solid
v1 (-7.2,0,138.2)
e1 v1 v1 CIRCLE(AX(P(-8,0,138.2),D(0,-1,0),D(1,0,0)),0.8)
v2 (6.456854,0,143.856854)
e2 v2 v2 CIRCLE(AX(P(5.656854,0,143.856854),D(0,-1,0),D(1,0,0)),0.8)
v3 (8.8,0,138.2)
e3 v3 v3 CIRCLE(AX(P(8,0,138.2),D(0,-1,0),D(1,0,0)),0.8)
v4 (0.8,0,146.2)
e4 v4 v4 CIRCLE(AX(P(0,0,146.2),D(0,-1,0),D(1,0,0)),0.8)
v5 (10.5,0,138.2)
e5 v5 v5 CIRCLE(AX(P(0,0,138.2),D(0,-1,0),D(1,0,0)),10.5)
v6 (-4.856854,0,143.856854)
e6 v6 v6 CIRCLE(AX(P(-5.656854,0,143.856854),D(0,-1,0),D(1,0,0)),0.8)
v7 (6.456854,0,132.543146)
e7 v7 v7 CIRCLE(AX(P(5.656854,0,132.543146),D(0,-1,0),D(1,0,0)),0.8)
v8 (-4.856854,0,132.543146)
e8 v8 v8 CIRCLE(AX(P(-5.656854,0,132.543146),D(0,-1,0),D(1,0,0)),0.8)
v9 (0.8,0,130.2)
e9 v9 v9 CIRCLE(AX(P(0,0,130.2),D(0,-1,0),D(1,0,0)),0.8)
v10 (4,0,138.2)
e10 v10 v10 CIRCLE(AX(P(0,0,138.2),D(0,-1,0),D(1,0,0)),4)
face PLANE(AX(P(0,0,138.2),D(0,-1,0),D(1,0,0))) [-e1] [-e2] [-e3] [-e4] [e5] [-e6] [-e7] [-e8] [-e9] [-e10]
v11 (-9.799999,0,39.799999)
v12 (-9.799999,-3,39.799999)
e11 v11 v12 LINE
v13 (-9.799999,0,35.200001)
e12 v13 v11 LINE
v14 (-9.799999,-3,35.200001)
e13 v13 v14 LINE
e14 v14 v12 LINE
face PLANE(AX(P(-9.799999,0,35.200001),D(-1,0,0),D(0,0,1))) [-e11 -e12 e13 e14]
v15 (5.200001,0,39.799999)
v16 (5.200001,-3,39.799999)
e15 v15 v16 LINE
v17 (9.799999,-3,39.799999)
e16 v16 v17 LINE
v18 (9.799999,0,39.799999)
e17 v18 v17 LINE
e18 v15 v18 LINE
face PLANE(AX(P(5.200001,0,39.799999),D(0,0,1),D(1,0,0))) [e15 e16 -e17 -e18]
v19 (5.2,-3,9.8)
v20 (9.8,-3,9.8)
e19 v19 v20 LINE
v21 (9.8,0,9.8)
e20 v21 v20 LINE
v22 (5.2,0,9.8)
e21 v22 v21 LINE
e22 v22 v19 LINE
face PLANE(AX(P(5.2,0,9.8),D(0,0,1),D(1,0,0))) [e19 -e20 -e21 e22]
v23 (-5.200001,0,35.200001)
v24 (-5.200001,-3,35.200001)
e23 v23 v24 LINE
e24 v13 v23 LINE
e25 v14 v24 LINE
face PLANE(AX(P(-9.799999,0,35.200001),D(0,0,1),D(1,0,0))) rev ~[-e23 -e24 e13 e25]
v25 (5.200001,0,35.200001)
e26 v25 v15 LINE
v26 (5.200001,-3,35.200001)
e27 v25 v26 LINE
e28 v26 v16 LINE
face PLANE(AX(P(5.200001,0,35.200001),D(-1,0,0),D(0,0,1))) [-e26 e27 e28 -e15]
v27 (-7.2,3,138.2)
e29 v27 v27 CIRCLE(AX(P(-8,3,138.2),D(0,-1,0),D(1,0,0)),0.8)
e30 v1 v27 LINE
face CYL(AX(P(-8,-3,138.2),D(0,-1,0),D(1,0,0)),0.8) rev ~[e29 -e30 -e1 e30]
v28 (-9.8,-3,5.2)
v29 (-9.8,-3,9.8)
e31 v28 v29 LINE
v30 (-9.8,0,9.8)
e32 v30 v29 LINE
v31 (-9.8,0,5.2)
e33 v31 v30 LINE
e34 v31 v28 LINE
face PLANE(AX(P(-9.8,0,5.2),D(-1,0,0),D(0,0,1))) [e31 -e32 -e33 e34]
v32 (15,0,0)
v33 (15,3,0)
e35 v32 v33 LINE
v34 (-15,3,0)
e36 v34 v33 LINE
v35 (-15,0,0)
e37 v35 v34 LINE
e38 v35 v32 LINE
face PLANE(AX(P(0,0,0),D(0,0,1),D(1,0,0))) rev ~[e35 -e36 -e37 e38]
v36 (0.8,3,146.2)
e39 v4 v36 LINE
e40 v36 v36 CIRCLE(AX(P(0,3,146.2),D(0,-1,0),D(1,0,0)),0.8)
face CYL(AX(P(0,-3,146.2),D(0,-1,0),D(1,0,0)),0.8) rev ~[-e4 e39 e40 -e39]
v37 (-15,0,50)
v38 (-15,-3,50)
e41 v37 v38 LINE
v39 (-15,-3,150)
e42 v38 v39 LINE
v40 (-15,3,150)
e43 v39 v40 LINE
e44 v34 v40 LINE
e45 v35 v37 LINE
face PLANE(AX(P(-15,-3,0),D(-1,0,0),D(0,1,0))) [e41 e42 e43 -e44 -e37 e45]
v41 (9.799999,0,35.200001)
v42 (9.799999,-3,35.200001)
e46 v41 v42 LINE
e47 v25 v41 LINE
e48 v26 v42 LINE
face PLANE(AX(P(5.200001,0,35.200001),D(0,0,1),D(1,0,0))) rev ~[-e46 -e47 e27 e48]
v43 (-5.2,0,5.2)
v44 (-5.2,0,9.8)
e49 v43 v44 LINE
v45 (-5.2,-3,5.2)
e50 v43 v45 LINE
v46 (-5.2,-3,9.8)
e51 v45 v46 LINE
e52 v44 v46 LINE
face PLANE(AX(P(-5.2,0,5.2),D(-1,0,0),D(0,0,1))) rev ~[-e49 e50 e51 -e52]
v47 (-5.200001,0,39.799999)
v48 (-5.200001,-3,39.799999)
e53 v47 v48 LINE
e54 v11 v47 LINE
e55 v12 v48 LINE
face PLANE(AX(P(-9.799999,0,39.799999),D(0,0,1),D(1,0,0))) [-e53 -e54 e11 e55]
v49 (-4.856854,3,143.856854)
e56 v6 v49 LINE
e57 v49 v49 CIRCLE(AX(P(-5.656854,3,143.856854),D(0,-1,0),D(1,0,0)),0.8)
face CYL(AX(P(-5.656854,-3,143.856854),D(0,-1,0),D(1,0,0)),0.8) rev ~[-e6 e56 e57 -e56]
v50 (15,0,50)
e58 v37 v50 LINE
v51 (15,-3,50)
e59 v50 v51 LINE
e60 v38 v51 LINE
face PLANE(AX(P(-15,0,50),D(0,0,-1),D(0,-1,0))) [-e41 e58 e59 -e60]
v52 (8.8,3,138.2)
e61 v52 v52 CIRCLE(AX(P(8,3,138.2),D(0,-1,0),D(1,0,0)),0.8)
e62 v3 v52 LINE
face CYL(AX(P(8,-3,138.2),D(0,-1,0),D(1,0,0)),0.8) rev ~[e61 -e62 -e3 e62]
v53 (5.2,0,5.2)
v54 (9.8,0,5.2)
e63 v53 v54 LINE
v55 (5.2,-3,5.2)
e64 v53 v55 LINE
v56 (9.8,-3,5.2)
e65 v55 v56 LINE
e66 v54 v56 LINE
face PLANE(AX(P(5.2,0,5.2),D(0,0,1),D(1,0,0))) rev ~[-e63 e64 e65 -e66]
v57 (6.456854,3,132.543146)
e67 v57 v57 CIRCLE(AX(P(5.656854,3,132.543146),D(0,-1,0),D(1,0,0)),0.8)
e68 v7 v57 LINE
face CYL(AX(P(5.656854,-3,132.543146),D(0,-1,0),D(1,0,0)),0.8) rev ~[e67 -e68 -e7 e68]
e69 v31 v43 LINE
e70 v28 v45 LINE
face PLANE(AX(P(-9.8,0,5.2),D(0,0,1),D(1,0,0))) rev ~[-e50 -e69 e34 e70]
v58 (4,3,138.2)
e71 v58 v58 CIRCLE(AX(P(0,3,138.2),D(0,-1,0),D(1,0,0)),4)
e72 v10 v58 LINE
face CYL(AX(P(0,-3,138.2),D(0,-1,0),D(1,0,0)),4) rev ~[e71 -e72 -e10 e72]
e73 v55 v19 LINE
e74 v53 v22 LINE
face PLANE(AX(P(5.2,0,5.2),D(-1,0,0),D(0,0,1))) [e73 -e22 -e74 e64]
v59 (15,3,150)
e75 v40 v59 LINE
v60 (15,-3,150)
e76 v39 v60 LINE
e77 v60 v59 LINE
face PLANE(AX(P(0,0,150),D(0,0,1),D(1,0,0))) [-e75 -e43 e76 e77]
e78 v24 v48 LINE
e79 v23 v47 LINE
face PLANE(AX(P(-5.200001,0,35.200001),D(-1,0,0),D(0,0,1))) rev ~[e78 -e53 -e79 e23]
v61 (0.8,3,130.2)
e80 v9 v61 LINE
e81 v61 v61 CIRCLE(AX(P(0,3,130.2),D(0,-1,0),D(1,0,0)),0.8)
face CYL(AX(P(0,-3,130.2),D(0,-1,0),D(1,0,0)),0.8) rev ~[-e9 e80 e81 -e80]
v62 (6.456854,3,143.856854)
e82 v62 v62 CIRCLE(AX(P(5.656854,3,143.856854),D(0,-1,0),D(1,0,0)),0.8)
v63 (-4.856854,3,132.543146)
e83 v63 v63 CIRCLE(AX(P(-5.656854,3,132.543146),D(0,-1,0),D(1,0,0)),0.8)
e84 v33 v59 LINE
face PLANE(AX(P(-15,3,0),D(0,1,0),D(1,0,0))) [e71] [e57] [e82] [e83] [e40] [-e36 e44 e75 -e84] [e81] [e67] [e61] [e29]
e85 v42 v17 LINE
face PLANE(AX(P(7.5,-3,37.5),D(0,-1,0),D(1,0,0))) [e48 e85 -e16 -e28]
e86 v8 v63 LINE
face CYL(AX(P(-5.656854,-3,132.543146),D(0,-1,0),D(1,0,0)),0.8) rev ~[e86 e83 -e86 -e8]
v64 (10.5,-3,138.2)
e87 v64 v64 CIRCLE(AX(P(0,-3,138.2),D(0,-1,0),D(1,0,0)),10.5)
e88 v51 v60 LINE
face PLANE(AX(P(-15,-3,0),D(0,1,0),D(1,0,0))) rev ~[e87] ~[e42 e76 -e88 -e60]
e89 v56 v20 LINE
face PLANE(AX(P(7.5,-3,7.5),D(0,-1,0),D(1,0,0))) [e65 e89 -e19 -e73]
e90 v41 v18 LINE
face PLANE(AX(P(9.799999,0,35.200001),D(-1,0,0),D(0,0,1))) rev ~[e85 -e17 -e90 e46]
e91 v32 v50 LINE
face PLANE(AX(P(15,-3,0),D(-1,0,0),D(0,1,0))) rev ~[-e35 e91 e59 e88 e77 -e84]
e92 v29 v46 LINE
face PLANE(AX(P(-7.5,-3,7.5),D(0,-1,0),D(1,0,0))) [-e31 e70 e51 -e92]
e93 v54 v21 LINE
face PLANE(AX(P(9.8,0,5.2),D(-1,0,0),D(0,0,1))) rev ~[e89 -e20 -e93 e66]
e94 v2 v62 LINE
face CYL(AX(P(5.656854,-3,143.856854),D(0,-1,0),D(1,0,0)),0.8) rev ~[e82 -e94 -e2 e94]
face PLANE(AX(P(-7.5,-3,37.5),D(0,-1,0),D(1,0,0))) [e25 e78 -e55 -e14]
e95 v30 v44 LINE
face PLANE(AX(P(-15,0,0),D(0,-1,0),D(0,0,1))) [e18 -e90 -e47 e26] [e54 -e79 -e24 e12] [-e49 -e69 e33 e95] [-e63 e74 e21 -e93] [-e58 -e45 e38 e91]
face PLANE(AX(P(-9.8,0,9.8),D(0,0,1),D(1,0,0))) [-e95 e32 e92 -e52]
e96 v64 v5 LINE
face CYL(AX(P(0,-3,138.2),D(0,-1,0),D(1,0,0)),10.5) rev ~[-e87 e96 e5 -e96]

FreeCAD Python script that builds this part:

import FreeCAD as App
import Part
import Sketcher

V = App.Vector


def add_polygon(sketch, points):
    """Adds a closed chain of lines whose ends are joined by coincident constraints."""
    first, n = sketch.GeometryCount, len(points)
    for a, b in zip(points, points[1:] + points[:1]):
        sketch.addGeometry(Part.LineSegment(App.Vector(*a, 0), App.Vector(*b, 0)), False)
    for i in range(n):
        sketch.addConstraint(Sketcher.Constraint("Coincident", first + i, 2, first + (i + 1) % n, 1))

doc = App.newDocument("Part")
params = doc.addObject("Spreadsheet::Sheet", "Params")
for row, (alias, value) in enumerate([
    ("sketch1_width", "30 mm"),
    ("sketch1_height", "6 mm"),
    ("pad1_length", "150 mm"),
    ("sketch2_diameter", "8 mm"),
    ("sketch2_diameter2", "1.6 mm"),
    ("sketch3_width", "3 mm"),
    ("sketch3_height", "50 mm"),
    ("sketch4_width", "4.6 mm"),
    ("pad2_length", "3 mm"),
    ("sketch5_diameter", "21 mm"),
    ("pocket3_length", "3 mm"),
], start=1):
    params.set(f"A{row}", alias)
    params.set(f"B{row}", "=" + value)
    params.setAlias(f"B{row}", alias)

body = doc.addObject("PartDesign::Body", "Body")

# Sketch on XY plane
sketch1 = body.newObject("Sketcher::SketchObject", "Sketch")
sketch1.AttachmentSupport = (doc.getObject("XY_Plane"), [""])
sketch1.MapMode = "FlatFace"
add_polygon(sketch1, [(-15, 3), (-15, -3), (15, -3), (15, 3)])  # lines 0-3
sketch1.addConstraint([
    Sketcher.Constraint("Vertical", 0),
    Sketcher.Constraint("Horizontal", 1),
    Sketcher.Constraint("Vertical", 2),
    Sketcher.Constraint("Horizontal", 3),
    Sketcher.Constraint("Symmetric", 0, 2, 2, 2, -1, 1),
    Sketcher.Constraint("DistanceX", 1, 1, 1, 2, 30.0),
    Sketcher.Constraint("DistanceY", 0, 2, 0, 1, 6.0),
])
sketch1.setExpression("Constraints[9]", "Params.sketch1_width")
sketch1.setExpression("Constraints[10]", "Params.sketch1_height")
pad1 = body.newObject("PartDesign::Pad", "Pad")
pad1.Profile = sketch1
pad1.setExpression("Length", "Params.pad1_length")

# Sketch on XZ plane
sketch2 = body.newObject("Sketcher::SketchObject", "Sketch001")
sketch2.AttachmentSupport = (doc.getObject("XZ_Plane"), [""])
sketch2.MapMode = "FlatFace"
sketch2.AttachmentOffset = App.Placement(V(0, 0, 3), App.Rotation())
sketch2.addGeometry([
    Part.Circle(V(0, 146.2, 0), V(0, 0, 1), 0.8),  # 0
    Part.Circle(V(0, 138.2, 0), V(0, 0, 1), 4),  # 1
    Part.Circle(V(-5.7, 143.9, 0), V(0, 0, 1), 0.8),  # 2
    Part.Circle(V(-8, 138.2, 0), V(0, 0, 1), 0.8),  # 3
    Part.Circle(V(-5.7, 132.5, 0), V(0, 0, 1), 0.8),  # 4
    Part.Circle(V(0, 130.2, 0), V(0, 0, 1), 0.8),  # 5
    Part.Circle(V(5.7, 132.5, 0), V(0, 0, 1), 0.8),  # 6
    Part.Circle(V(8, 138.2, 0), V(0, 0, 1), 0.8),  # 7
    Part.Circle(V(5.7, 143.9, 0), V(0, 0, 1), 0.8),  # 8
], False)
sketch2.addConstraint([
    Sketcher.Constraint("Equal", 0, 2),
    Sketcher.Constraint("Equal", 2, 3),
    Sketcher.Constraint("Equal", 3, 4),
    Sketcher.Constraint("Equal", 4, 5),
    Sketcher.Constraint("Equal", 5, 6),
    Sketcher.Constraint("Equal", 6, 7),
    Sketcher.Constraint("Equal", 7, 8),
    Sketcher.Constraint("Symmetric", 4, 3, 6, 3, -2),
    Sketcher.Constraint("Symmetric", 3, 3, 7, 3, -2),
    Sketcher.Constraint("Symmetric", 2, 3, 8, 3, -2),
    Sketcher.Constraint("PointOnObject", 0, 3, -2),
    Sketcher.Constraint("PointOnObject", 1, 3, -2),
    Sketcher.Constraint("PointOnObject", 5, 3, -2),
    Sketcher.Constraint("Horizontal", 1, 3, 3, 3),
    Sketcher.Constraint("Vertical", 2, 3, 4, 3),
    Sketcher.Constraint("Diameter", 1, 8.0),
    Sketcher.Constraint("Diameter", 0, 1.6),
    Sketcher.Constraint("DistanceX", 3, 3, -1, 1, 8.0),
    Sketcher.Constraint("DistanceY", 1, 3, 0, 3, 8.0),
    Sketcher.Constraint("DistanceY", 5, 3, 1, 3, 8.0),
    Sketcher.Constraint("DistanceY", -1, 1, 0, 3, 146.2),
    Sketcher.Constraint("DistanceX", 2, 3, -1, 1, 5.656854),
    Sketcher.Constraint("DistanceY", -1, 1, 2, 3, 143.856854),
    Sketcher.Constraint("DistanceY", -1, 1, 4, 3, 132.543146),
])
sketch2.setExpression("Constraints[15]", "Params.sketch2_diameter")
sketch2.setExpression("Constraints[16]", "Params.sketch2_diameter2")
pocket1 = body.newObject("PartDesign::Pocket", "Pocket")
pocket1.Profile = sketch2
pocket1.Type = "ThroughAll"

# Sketch on YZ plane
sketch3 = body.newObject("Sketcher::SketchObject", "Sketch002")
sketch3.AttachmentSupport = (doc.getObject("YZ_Plane"), [""])
sketch3.MapMode = "FlatFace"
sketch3.AttachmentOffset = App.Placement(V(0, 0, -15), App.Rotation())
add_polygon(sketch3, [(0, 50), (0, 0), (-3, 0), (-3, 50)])  # lines 0-3
sketch3.addConstraint([
    Sketcher.Constraint("Vertical", 0),
    Sketcher.Constraint("Horizontal", 1),
    Sketcher.Constraint("Vertical", 2),
    Sketcher.Constraint("Horizontal", 3),
    Sketcher.Constraint("Coincident", 0, 2, -1, 1),
    Sketcher.Constraint("DistanceX", 1, 2, 1, 1, 3.0),
    Sketcher.Constraint("DistanceY", 0, 2, 0, 1, 50.0),
])
sketch3.setExpression("Constraints[9]", "Params.sketch3_width")
sketch3.setExpression("Constraints[10]", "Params.sketch3_height")
pocket2 = body.newObject("PartDesign::Pocket", "Pocket001")
pocket2.Profile = sketch3
pocket2.Type = "ThroughAll"
pocket2.Reversed = True

# Sketch on XZ plane
sketch4 = body.newObject("Sketcher::SketchObject", "Sketch003")
sketch4.AttachmentSupport = (doc.getObject("XZ_Plane"), [""])
sketch4.MapMode = "FlatFace"
add_polygon(sketch4, [(5.2, 39.8), (5.2, 35.2), (9.8, 35.2), (9.8, 39.8)])  # lines 0-3
add_polygon(sketch4, [(-9.8, 39.8), (-9.8, 35.2), (-5.2, 35.2), (-5.2, 39.8)])  # lines 4-7
add_polygon(sketch4, [(-9.8, 9.8), (-9.8, 5.2), (-5.2, 5.2), (-5.2, 9.8)])  # lines 8-11
add_polygon(sketch4, [(5.2, 9.8), (5.2, 5.2), (9.8, 5.2), (9.8, 9.8)])  # lines 12-15
sketch4.addConstraint([
    Sketcher.Constraint("Vertical", 0),
    Sketcher.Constraint("Horizontal", 1),
    Sketcher.Constraint("Vertical", 2),
    Sketcher.Constraint("Horizontal", 3),
    Sketcher.Constraint("Vertical", 4),
    Sketcher.Constraint("Horizontal", 5),
    Sketcher.Constraint("Vertical", 6),
    Sketcher.Constraint("Horizontal", 7),
    Sketcher.Constraint("Vertical", 8),
    Sketcher.Constraint("Horizontal", 9),
    Sketcher.Constraint("Vertical", 10),
    Sketcher.Constraint("Horizontal", 11),
    Sketcher.Constraint("Vertical", 12),
    Sketcher.Constraint("Horizontal", 13),
    Sketcher.Constraint("Vertical", 14),
    Sketcher.Constraint("Horizontal", 15),
    Sketcher.Constraint("Symmetric", 1, 2, 4, 2, -2),
    Sketcher.Constraint("Symmetric", 3, 2, 6, 2, -2),
    Sketcher.Constraint("Symmetric", 9, 2, 12, 2, -2),
    Sketcher.Constraint("Symmetric", 11, 2, 14, 2, -2),
    Sketcher.Constraint("Vertical", 7, 2, 8, 2),
    Sketcher.Constraint("Vertical", 6, 2, 9, 2),
    Sketcher.Constraint("Equal", 7, 0),
    Sketcher.Constraint("Equal", 15, 8),
    Sketcher.Constraint("DistanceX", 9, 1, 9, 2, 4.6),
    Sketcher.Constraint("DistanceX", 4, 2, 0, 2, 15.0),
    Sketcher.Constraint("DistanceY", 8, 2, 4, 2, 30.000001),
    Sketcher.Constraint("DistanceY", -1, 1, 0, 2, 35.200001),
])
sketch4.setExpression("Constraints[40]", "Params.sketch4_width")
pad2 = body.newObject("PartDesign::Pad", "Pad001")
pad2.Profile = sketch4
pad2.setExpression("Length", "Params.pad2_length")

# Sketch on XZ plane
sketch5 = body.newObject("Sketcher::SketchObject", "Sketch004")
sketch5.AttachmentSupport = (doc.getObject("XZ_Plane"), [""])
sketch5.MapMode = "FlatFace"
sketch5.AttachmentOffset = App.Placement(V(0, 0, 3), App.Rotation())
sketch5.addGeometry(Part.Circle(V(0, 138, 0), V(0, 0, 1), 10), False)
sketch5.addConstraint([
    Sketcher.Constraint("PointOnObject", 0, 3, -2),
    Sketcher.Constraint("Diameter", 0, 21.0),
    Sketcher.Constraint("DistanceY", -1, 1, 0, 3, 138.2),
])
sketch5.setExpression("Constraints[1]", "Params.sketch5_diameter")
pocket3 = body.newObject("PartDesign::Pocket", "Pocket002")
pocket3.Profile = sketch5
pocket3.setExpression("Length", "Params.pocket3_length")

doc.recompute()
